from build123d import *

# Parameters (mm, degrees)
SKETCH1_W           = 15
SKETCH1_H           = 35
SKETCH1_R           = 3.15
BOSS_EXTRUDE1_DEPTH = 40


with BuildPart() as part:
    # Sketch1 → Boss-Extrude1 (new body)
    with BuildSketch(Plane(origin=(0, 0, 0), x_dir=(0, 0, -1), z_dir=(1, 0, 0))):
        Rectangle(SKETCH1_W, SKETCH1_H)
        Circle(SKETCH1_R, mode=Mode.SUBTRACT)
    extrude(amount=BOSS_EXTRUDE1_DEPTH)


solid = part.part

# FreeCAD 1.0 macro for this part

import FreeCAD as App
import Part
import Sketcher
Q = App.Units.Quantity

doc = App.newDocument("Part")
body = doc.addObject("PartDesign::Body", "Body")

sketch1 = doc.addObject("Sketcher::SketchObject", "Sketch")
body.addObject(sketch1)
sketch1.AttachmentSupport = (doc.YZ_Plane, [""])
sketch1.MapMode = "FlatFace"
sketch1.addGeometry([
    Part.LineSegment(App.Vector(17.5, 7.5, 0), App.Vector(-17.5, 7.5, 0)),
    Part.LineSegment(App.Vector(-17.5, 7.5, 0), App.Vector(-17.5, -7.5, 0)),
    Part.LineSegment(App.Vector(-17.5, -7.5, 0), App.Vector(17.5, -7.5, 0)),
    Part.LineSegment(App.Vector(17.5, -7.5, 0), App.Vector(17.5, 7.5, 0)),
    Part.Circle(App.Vector(0, 0, 0), App.Vector(0, 0, 1), 3.1),
], False)
sketch1.addConstraint([
    Sketcher.Constraint("Coincident", 0, 2, 1, 1),
    Sketcher.Constraint("Coincident", 1, 2, 2, 1),
    Sketcher.Constraint("Coincident", 2, 2, 3, 1),
    Sketcher.Constraint("Coincident", 3, 2, 0, 1),
    Sketcher.Constraint("Horizontal", 0),
    Sketcher.Constraint("Vertical", 1),
    Sketcher.Constraint("Horizontal", 2),
    Sketcher.Constraint("Vertical", 3),
    Sketcher.Constraint("Coincident", 4, 3, -1, 1),
    Sketcher.Constraint("Symmetric", 0, 2, 2, 2, -1, 1),
    Sketcher.Constraint("Diameter", 4, Q("6.3 mm")),
    Sketcher.Constraint("DistanceX", 0, 2, 0, 1, Q("35 mm")),
    Sketcher.Constraint("DistanceY", 1, 2, 1, 1, Q("15 mm")),
])
pad1 = doc.addObject("PartDesign::Pad", "Pad")
body.addObject(pad1)
pad1.Profile = sketch1
pad1.Length = 40

doc.recompute()
